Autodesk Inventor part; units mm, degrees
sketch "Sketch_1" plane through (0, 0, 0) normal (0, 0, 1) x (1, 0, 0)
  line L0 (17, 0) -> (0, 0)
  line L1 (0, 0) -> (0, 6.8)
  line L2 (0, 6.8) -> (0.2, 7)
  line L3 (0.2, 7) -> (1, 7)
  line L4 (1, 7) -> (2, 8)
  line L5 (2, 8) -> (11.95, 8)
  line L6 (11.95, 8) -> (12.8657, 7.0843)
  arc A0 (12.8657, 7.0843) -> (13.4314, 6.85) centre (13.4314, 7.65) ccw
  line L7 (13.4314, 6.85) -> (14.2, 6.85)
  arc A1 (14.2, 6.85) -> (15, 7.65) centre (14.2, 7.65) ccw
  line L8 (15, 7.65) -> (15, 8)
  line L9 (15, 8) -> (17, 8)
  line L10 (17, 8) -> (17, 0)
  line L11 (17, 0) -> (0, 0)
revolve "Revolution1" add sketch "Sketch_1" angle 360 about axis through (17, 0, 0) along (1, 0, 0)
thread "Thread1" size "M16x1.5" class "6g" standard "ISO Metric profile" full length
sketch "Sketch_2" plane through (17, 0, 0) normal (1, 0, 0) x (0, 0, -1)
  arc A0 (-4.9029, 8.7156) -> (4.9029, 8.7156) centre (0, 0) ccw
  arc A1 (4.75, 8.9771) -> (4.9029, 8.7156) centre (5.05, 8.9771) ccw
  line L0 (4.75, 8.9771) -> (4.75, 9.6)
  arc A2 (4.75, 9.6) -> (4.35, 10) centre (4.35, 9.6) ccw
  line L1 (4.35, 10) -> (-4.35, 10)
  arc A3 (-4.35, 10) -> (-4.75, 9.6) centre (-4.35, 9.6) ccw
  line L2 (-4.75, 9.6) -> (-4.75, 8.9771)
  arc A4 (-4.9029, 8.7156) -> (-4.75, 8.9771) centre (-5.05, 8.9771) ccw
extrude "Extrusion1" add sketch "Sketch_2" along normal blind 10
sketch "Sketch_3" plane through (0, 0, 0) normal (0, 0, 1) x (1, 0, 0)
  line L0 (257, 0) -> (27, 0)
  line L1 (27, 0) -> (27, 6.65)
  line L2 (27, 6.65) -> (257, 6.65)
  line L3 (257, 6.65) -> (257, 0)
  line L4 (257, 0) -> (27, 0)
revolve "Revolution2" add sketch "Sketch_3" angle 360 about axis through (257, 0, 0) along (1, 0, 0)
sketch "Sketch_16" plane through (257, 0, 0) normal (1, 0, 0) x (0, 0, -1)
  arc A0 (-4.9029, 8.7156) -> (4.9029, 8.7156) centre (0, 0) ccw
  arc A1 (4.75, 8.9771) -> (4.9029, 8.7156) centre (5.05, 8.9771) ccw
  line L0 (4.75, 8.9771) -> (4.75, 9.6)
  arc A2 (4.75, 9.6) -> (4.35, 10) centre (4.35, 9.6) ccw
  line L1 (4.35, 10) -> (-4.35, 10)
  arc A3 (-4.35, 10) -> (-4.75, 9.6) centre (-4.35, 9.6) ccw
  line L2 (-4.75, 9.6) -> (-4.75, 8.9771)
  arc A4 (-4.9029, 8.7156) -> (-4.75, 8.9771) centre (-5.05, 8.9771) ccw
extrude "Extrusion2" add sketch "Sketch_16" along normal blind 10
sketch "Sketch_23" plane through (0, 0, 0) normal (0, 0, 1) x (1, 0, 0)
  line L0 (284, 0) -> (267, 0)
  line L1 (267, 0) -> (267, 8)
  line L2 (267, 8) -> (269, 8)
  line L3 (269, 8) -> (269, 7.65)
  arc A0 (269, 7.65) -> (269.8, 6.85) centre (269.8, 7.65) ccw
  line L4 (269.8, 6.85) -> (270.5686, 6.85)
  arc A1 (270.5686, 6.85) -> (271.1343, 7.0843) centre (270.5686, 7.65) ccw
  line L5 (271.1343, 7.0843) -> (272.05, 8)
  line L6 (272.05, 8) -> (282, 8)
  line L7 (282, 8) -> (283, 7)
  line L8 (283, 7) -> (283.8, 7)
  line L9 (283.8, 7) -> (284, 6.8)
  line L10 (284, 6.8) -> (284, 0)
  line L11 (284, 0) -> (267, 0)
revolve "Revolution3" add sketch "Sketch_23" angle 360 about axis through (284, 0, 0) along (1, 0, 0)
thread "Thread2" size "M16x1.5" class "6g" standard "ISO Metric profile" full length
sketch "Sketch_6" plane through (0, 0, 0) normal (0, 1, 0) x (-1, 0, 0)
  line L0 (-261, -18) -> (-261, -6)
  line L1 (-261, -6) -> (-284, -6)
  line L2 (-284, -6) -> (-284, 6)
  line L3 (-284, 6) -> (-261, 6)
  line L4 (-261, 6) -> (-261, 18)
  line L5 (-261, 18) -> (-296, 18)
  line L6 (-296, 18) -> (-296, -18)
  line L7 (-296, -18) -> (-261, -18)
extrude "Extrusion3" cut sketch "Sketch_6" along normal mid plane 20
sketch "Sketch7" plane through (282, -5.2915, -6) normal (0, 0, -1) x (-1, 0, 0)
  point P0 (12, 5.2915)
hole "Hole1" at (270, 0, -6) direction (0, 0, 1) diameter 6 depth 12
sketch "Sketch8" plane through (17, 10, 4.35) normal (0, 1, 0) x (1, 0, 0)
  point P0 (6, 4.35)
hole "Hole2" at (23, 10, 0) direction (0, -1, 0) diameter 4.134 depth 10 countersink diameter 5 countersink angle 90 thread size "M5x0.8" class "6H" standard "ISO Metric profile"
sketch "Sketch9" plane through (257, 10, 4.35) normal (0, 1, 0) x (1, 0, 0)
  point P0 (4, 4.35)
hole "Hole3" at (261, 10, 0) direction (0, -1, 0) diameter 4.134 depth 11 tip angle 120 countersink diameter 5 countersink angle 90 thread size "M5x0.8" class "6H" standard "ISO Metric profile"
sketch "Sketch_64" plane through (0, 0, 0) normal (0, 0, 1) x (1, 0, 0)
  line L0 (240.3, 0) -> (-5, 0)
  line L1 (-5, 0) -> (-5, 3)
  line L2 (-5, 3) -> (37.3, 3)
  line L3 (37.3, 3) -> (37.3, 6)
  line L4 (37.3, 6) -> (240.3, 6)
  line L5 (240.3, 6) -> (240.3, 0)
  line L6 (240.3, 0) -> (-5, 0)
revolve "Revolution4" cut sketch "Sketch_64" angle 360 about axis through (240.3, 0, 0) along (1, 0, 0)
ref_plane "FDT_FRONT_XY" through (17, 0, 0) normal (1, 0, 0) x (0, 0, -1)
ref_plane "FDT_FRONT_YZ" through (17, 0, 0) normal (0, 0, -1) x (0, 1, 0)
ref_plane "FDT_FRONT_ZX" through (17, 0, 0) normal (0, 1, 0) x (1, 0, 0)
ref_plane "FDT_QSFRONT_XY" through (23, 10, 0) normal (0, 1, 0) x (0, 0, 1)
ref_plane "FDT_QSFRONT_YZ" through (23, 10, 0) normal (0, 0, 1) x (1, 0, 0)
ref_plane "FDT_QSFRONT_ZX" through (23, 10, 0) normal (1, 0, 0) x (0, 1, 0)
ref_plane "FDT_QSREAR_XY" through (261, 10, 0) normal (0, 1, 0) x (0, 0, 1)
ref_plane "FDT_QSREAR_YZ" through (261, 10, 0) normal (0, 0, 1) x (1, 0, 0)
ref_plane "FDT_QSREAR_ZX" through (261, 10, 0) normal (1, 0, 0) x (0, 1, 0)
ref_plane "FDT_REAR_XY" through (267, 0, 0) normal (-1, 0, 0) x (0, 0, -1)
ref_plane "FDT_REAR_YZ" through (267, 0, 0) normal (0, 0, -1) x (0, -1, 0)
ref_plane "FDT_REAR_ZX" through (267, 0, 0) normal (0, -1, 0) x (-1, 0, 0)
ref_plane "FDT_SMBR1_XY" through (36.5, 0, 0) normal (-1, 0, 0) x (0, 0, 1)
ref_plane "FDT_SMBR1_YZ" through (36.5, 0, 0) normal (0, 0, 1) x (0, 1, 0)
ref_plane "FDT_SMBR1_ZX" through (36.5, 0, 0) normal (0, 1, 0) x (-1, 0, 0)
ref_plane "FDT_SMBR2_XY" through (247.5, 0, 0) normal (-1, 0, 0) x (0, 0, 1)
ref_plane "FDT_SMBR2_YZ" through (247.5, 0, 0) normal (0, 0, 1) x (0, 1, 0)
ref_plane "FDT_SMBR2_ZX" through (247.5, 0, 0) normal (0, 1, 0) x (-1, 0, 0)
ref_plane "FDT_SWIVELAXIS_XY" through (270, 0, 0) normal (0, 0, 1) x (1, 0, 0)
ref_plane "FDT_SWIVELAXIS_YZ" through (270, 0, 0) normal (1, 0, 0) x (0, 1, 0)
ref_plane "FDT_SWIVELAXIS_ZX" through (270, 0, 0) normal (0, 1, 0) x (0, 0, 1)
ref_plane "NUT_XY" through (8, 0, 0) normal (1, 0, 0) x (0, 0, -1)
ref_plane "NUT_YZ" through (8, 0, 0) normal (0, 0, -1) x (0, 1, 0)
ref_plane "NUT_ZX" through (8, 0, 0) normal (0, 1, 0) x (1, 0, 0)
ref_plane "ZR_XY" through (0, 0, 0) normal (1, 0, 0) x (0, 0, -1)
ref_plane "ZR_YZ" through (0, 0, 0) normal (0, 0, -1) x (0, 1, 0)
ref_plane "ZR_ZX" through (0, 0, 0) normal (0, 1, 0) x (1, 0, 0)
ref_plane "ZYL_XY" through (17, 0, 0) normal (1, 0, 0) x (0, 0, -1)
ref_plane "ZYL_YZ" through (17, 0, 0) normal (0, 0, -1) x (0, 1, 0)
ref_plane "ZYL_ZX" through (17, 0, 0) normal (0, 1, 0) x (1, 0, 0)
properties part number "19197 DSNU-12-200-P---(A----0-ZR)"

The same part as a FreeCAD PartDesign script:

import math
import FreeCAD as App
import Part
import Sketcher
from FreeCAD import Vector
Q = App.Units.Quantity

doc = App.newDocument("Part")
body = doc.addObject("PartDesign::Body", "Body")

# Sketch on XY plane
sketch1 = doc.addObject("Sketcher::SketchObject", "Sketch")
body.addObject(sketch1)
sketch1.AttachmentSupport = (doc.XY_Plane, [""])
sketch1.MapMode = "FlatFace"
sketch1.addGeometry([
    Part.LineSegment(Vector(0, 0, 0), Vector(17, 0, 0)),  # 0
    Part.LineSegment(Vector(17, 0, 0), Vector(17, 8, 0)),  # 1
    Part.LineSegment(Vector(17, 8, 0), Vector(15, 8, 0)),  # 2
    Part.LineSegment(Vector(15, 8, 0), Vector(15, 7.65, 0)),  # 3
    Part.ArcOfCircle(Part.Circle(Vector(14.2, 7.65, 0), Vector(0, 0, 1), 0.8), math.radians(-90), math.radians(0)),  # 4
    Part.LineSegment(Vector(14.2, 6.85, 0), Vector(13.43, 6.85, 0)),  # 5
    Part.ArcOfCircle(Part.Circle(Vector(13.43, 7.65, 0), Vector(0, 0, 1), 0.8), math.radians(-135), math.radians(-90)),  # 6
    Part.LineSegment(Vector(12.87, 7.08, 0), Vector(11.95, 8, 0)),  # 7
    Part.LineSegment(Vector(11.95, 8, 0), Vector(2, 8, 0)),  # 8
    Part.LineSegment(Vector(2, 8, 0), Vector(1, 7, 0)),  # 9
    Part.LineSegment(Vector(1, 7, 0), Vector(0.2, 7, 0)),  # 10
    Part.LineSegment(Vector(0.2, 7, 0), Vector(0, 6.8, 0)),  # 11
    Part.LineSegment(Vector(0, 6.8, 0), Vector(0, 0, 0)),  # 12
], False)
sketch1.addConstraint([
    Sketcher.Constraint("Coincident", 0, 2, 1, 1),
    Sketcher.Constraint("Coincident", 1, 2, 2, 1),
    Sketcher.Constraint("Coincident", 2, 2, 3, 1),
    Sketcher.Constraint("Tangent", 3, 2, 4, 2),
    Sketcher.Constraint("Tangent", 4, 1, 5, 1),
    Sketcher.Constraint("Tangent", 5, 2, 6, 2),
    Sketcher.Constraint("Tangent", 6, 1, 7, 1),
    Sketcher.Constraint("Coincident", 7, 2, 8, 1),
    Sketcher.Constraint("Coincident", 8, 2, 9, 1),
    Sketcher.Constraint("Coincident", 9, 2, 10, 1),
    Sketcher.Constraint("Coincident", 10, 2, 11, 1),
    Sketcher.Constraint("Coincident", 11, 2, 12, 1),
    Sketcher.Constraint("Coincident", 12, 2, 0, 1),
    Sketcher.Constraint("Horizontal", 0),
    Sketcher.Constraint("Vertical", 1),
    Sketcher.Constraint("Horizontal", 2),
    Sketcher.Constraint("Vertical", 3),
    Sketcher.Constraint("Horizontal", 5),
    Sketcher.Constraint("Horizontal", 8),
    Sketcher.Constraint("Horizontal", 10),
    Sketcher.Constraint("Vertical", 12),
    Sketcher.Constraint("Coincident", 12, 2, -1, 1),
    Sketcher.Constraint("Equal", 4, 6),
    Sketcher.Constraint("Perpendicular", 7, 9),
    Sketcher.Constraint("Parallel", 9, 11),
    Sketcher.Constraint("Horizontal", 2, 2, 7, 2),
    Sketcher.Constraint("Radius", 4, Q("0.8 mm")),
    Sketcher.Constraint("DistanceX", 0, 1, 0, 2, Q("17 mm")),
    Sketcher.Constraint("DistanceX", 2, 2, 2, 1, Q("2 mm")),
    Sketcher.Constraint("DistanceY", 1, 1, 1, 2, Q("8 mm")),
    Sketcher.Constraint("Angle", 7, Q("135 deg")),
    Sketcher.Constraint("DistanceX", 10, 2, 10, 1, Q("0.8 mm")),
    Sketcher.Constraint("DistanceY", 12, 2, 12, 1, Q("6.8 mm")),
    Sketcher.Constraint("DistanceX", -1, 1, 9, 2, Q("1 mm")),
    Sketcher.Constraint("DistanceX", 8, 2, 8, 1, Q("9.95 mm")),
    Sketcher.Constraint("DistanceY", 3, 2, 3, 1, Q("0.35 mm")),
])
revolution = doc.addObject("PartDesign::Revolution", "Revolution")
body.addObject(revolution)
revolution.Profile = sketch1
revolution.ReferenceAxis = (sketch1, ["H_Axis"])
revolution.Angle = 360

# Sketch on YZ plane
sketch2 = doc.addObject("Sketcher::SketchObject", "Sketch001")
body.addObject(sketch2)
sketch2.AttachmentSupport = (doc.YZ_Plane, [""])
sketch2.MapMode = "FlatFace"
sketch2.AttachmentOffset = App.Placement(Vector(0, 0, 17), App.Rotation())
sketch2.addGeometry([
    Part.ArcOfCircle(Part.Circle(Vector(8.98, 5.05, 0), Vector(0, 0, 1), 0.3), math.radians(-151), math.radians(-90)),  # 0
    Part.ArcOfCircle(Part.Circle(Vector(0, 0, 0), Vector(0, 0, 1), 10), math.radians(29), math.radians(331)),  # 1
    Part.ArcOfCircle(Part.Circle(Vector(8.98, -5.05, 0), Vector(0, 0, 1), 0.3), math.radians(90), math.radians(151)),  # 2
    Part.LineSegment(Vector(8.98, -4.75, 0), Vector(9.6, -4.75, 0)),  # 3
    Part.ArcOfCircle(Part.Circle(Vector(9.6, -4.35, 0), Vector(0, 0, 1), 0.4), math.radians(-90), math.radians(0)),  # 4
    Part.LineSegment(Vector(10, -4.35, 0), Vector(10, 4.35, 0)),  # 5
    Part.ArcOfCircle(Part.Circle(Vector(9.6, 4.35, 0), Vector(0, 0, 1), 0.4), math.radians(0), math.radians(90)),  # 6
    Part.LineSegment(Vector(9.6, 4.75, 0), Vector(8.98, 4.75, 0)),  # 7
], False)
sketch2.addConstraint([
    Sketcher.Constraint("Tangent", 0, 1, 1, 1),
    Sketcher.Constraint("Tangent", 1, 2, 2, 2),
    Sketcher.Constraint("Tangent", 2, 1, 3, 1),
    Sketcher.Constraint("Tangent", 3, 2, 4, 1),
    Sketcher.Constraint("Tangent", 4, 2, 5, 1),
    Sketcher.Constraint("Tangent", 5, 2, 6, 1),
    Sketcher.Constraint("Tangent", 6, 2, 7, 1),
    Sketcher.Constraint("Tangent", 7, 2, 0, 2),
    Sketcher.Constraint("Horizontal", 3),
    Sketcher.Constraint("Vertical", 5),
    Sketcher.Constraint("Horizontal", 7),
    Sketcher.Constraint("Coincident", 1, 3, -1, 1),
    Sketcher.Constraint("Equal", 0, 2),
    Sketcher.Constraint("Equal", 4, 6),
    Sketcher.Constraint("Vertical", 0, 3, 2, 3),
    Sketcher.Constraint("Radius", 1, Q("10 mm")),
    Sketcher.Constraint("Radius", 0, Q("0.3 mm")),
    Sketcher.Constraint("Radius", 4, Q("0.4 mm")),
    Sketcher.Constraint("DistanceY", 5, 1, 5, 2, Q("8.7 mm")),
    Sketcher.Constraint("DistanceX", -1, 1, 4, 2, Q("10 mm")),
])
pad1 = doc.addObject("PartDesign::Pad", "Pad")
body.addObject(pad1)
pad1.Profile = sketch2
pad1.Length = 10

# Sketch on XY plane
sketch3 = doc.addObject("Sketcher::SketchObject", "Sketch002")
body.addObject(sketch3)
sketch3.AttachmentSupport = (doc.XY_Plane, [""])
sketch3.MapMode = "FlatFace"
sketch3.addGeometry([
    Part.LineSegment(Vector(27, 0, 0), Vector(257, 0, 0)),
    Part.LineSegment(Vector(257, 0, 0), Vector(257, 7, 0)),
    Part.LineSegment(Vector(257, 7, 0), Vector(27, 7, 0)),
    Part.LineSegment(Vector(27, 7, 0), Vector(27, 0, 0)),
], False)
sketch3.addConstraint([
    Sketcher.Constraint("Coincident", 0, 2, 1, 1),
    Sketcher.Constraint("Coincident", 1, 2, 2, 1),
    Sketcher.Constraint("Coincident", 2, 2, 3, 1),
    Sketcher.Constraint("Coincident", 3, 2, 0, 1),
    Sketcher.Constraint("Horizontal", 0),
    Sketcher.Constraint("Vertical", 1),
    Sketcher.Constraint("Horizontal", 2),
    Sketcher.Constraint("Vertical", 3),
    Sketcher.Constraint("PointOnObject", 0, 2, -1),
    Sketcher.Constraint("DistanceX", 0, 1, 0, 2, Q("230 mm")),
    Sketcher.Constraint("DistanceX", -1, 1, 0, 2, Q("257 mm")),
    Sketcher.Constraint("DistanceY", 1, 1, 1, 2, Q("6.65 mm")),
])
revolution2 = doc.addObject("PartDesign::Revolution", "Revolution001")
body.addObject(revolution2)
revolution2.Profile = sketch3
revolution2.ReferenceAxis = (sketch3, ["H_Axis"])
revolution2.Angle = 360

# Sketch on YZ plane
sketch4 = doc.addObject("Sketcher::SketchObject", "Sketch003")
body.addObject(sketch4)
sketch4.AttachmentSupport = (doc.YZ_Plane, [""])
sketch4.MapMode = "FlatFace"
sketch4.AttachmentOffset = App.Placement(Vector(0, 0, 257), App.Rotation())
sketch4.addGeometry([
    Part.ArcOfCircle(Part.Circle(Vector(8.98, 5.05, 0), Vector(0, 0, 1), 0.3), math.radians(-151), math.radians(-90)),  # 0
    Part.ArcOfCircle(Part.Circle(Vector(0, 0, 0), Vector(0, 0, 1), 10), math.radians(29), math.radians(331)),  # 1
    Part.ArcOfCircle(Part.Circle(Vector(8.98, -5.05, 0), Vector(0, 0, 1), 0.3), math.radians(90), math.radians(151)),  # 2
    Part.LineSegment(Vector(8.98, -4.75, 0), Vector(9.6, -4.75, 0)),  # 3
    Part.ArcOfCircle(Part.Circle(Vector(9.6, -4.35, 0), Vector(0, 0, 1), 0.4), math.radians(-90), math.radians(0)),  # 4
    Part.LineSegment(Vector(10, -4.35, 0), Vector(10, 4.35, 0)),  # 5
    Part.ArcOfCircle(Part.Circle(Vector(9.6, 4.35, 0), Vector(0, 0, 1), 0.4), math.radians(0), math.radians(90)),  # 6
    Part.LineSegment(Vector(9.6, 4.75, 0), Vector(8.98, 4.75, 0)),  # 7
], False)
sketch4.addConstraint([
    Sketcher.Constraint("Tangent", 0, 1, 1, 1),
    Sketcher.Constraint("Tangent", 1, 2, 2, 2),
    Sketcher.Constraint("Tangent", 2, 1, 3, 1),
    Sketcher.Constraint("Tangent", 3, 2, 4, 1),
    Sketcher.Constraint("Tangent", 4, 2, 5, 1),
    Sketcher.Constraint("Tangent", 5, 2, 6, 1),
    Sketcher.Constraint("Tangent", 6, 2, 7, 1),
    Sketcher.Constraint("Tangent", 7, 2, 0, 2),
    Sketcher.Constraint("Horizontal", 3),
    Sketcher.Constraint("Vertical", 5),
    Sketcher.Constraint("Horizontal", 7),
    Sketcher.Constraint("Coincident", 1, 3, -1, 1),
    Sketcher.Constraint("Equal", 0, 2),
    Sketcher.Constraint("Equal", 4, 6),
    Sketcher.Constraint("Vertical", 0, 3, 2, 3),
    Sketcher.Constraint("Radius", 1, Q("10 mm")),
    Sketcher.Constraint("Radius", 0, Q("0.3 mm")),
    Sketcher.Constraint("Radius", 4, Q("0.4 mm")),
    Sketcher.Constraint("DistanceY", 5, 1, 5, 2, Q("8.7 mm")),
    Sketcher.Constraint("DistanceX", -1, 1, 4, 2, Q("10 mm")),
])
pad2 = doc.addObject("PartDesign::Pad", "Pad001")
body.addObject(pad2)
pad2.Profile = sketch4
pad2.Length = 10

# Sketch on XY plane
sketch5 = doc.addObject("Sketcher::SketchObject", "Sketch004")
body.addObject(sketch5)
sketch5.AttachmentSupport = (doc.XY_Plane, [""])
sketch5.MapMode = "FlatFace"
sketch5.addGeometry([
    Part.LineSegment(Vector(267, 0, 0), Vector(284, 0, 0)),  # 0
    Part.LineSegment(Vector(284, 0, 0), Vector(284, 6.8, 0)),  # 1
    Part.LineSegment(Vector(284, 6.8, 0), Vector(283.8, 7, 0)),  # 2
    Part.LineSegment(Vector(283.8, 7, 0), Vector(283, 7, 0)),  # 3
    Part.LineSegment(Vector(283, 7, 0), Vector(282, 8, 0)),  # 4
    Part.LineSegment(Vector(282, 8, 0), Vector(272.05, 8, 0)),  # 5
    Part.LineSegment(Vector(272.05, 8, 0), Vector(271.13, 7.08, 0)),  # 6
    Part.ArcOfCircle(Part.Circle(Vector(270.57, 7.65, 0), Vector(0, 0, 1), 0.8), math.radians(-90), math.radians(-45)),  # 7
    Part.LineSegment(Vector(270.57, 6.85, 0), Vector(269.8, 6.85, 0)),  # 8
    Part.ArcOfCircle(Part.Circle(Vector(269.8, 7.65, 0), Vector(0, 0, 1), 0.8), math.radians(180), math.radians(270)),  # 9
    Part.LineSegment(Vector(269, 7.65, 0), Vector(269, 8, 0)),  # 10
    Part.LineSegment(Vector(269, 8, 0), Vector(267, 8, 0)),  # 11
    Part.LineSegment(Vector(267, 8, 0), Vector(267, 0, 0)),  # 12
], False)
sketch5.addConstraint([
    Sketcher.Constraint("Coincident", 0, 2, 1, 1),
    Sketcher.Constraint("Coincident", 1, 2, 2, 1),
    Sketcher.Constraint("Coincident", 2, 2, 3, 1),
    Sketcher.Constraint("Coincident", 3, 2, 4, 1),
    Sketcher.Constraint("Coincident", 4, 2, 5, 1),
    Sketcher.Constraint("Coincident", 5, 2, 6, 1),
    Sketcher.Constraint("Tangent", 6, 2, 7, 2),
    Sketcher.Constraint("Tangent", 7, 1, 8, 1),
    Sketcher.Constraint("Tangent", 8, 2, 9, 2),
    Sketcher.Constraint("Tangent", 9, 1, 10, 1),
    Sketcher.Constraint("Coincident", 10, 2, 11, 1),
    Sketcher.Constraint("Coincident", 11, 2, 12, 1),
    Sketcher.Constraint("Coincident", 12, 2, 0, 1),
    Sketcher.Constraint("Horizontal", 0),
    Sketcher.Constraint("Vertical", 1),
    Sketcher.Constraint("Horizontal", 3),
    Sketcher.Constraint("Horizontal", 5),
    Sketcher.Constraint("Horizontal", 8),
    Sketcher.Constraint("Vertical", 10),
    Sketcher.Constraint("Horizontal", 11),
    Sketcher.Constraint("Vertical", 12),
    Sketcher.Constraint("Equal", 7, 9),
    Sketcher.Constraint("PointOnObject", 0, 2, -1),
    Sketcher.Constraint("Parallel", 2, 4),
    Sketcher.Constraint("Perpendicular", 4, 6),
    Sketcher.Constraint("Horizontal", 5, 2, 10, 2),
    Sketcher.Constraint("Radius", 7, Q("0.8 mm")),
    Sketcher.Constraint("DistanceX", 0, 1, 0, 2, Q("17 mm")),
    Sketcher.Constraint("DistanceX", 11, 2, 11, 1, Q("2 mm")),
    Sketcher.Constraint("DistanceY", 12, 2, 12, 1, Q("8 mm")),
    Sketcher.Constraint("Angle", 2, Q("135 deg")),
    Sketcher.Constraint("DistanceX", 3, 2, 3, 1, Q("0.8 mm")),
    Sketcher.Constraint("DistanceY", 1, 1, 1, 2, Q("6.8 mm")),
    Sketcher.Constraint("DistanceX", -1, 1, 0, 2, Q("284 mm")),
    Sketcher.Constraint("DistanceY", -1, 1, 2, 2, Q("7 mm")),
    Sketcher.Constraint("DistanceX", 5, 2, 5, 1, Q("9.95 mm")),
    Sketcher.Constraint("DistanceY", 10, 1, 10, 2, Q("0.35 mm")),
])
revolution3 = doc.addObject("PartDesign::Revolution", "Revolution002")
body.addObject(revolution3)
revolution3.Profile = sketch5
revolution3.ReferenceAxis = (sketch5, ["H_Axis"])
revolution3.Angle = 360

# Sketch on XZ plane
sketch6 = doc.addObject("Sketcher::SketchObject", "Sketch005")
body.addObject(sketch6)
sketch6.AttachmentSupport = (doc.XZ_Plane, [""])
sketch6.MapMode = "FlatFace"
sketch6.addGeometry([
    Part.LineSegment(Vector(296, -18, 0), Vector(261, -18, 0)),  # 0
    Part.LineSegment(Vector(261, -18, 0), Vector(261, -6, 0)),  # 1
    Part.LineSegment(Vector(261, -6, 0), Vector(284, -6, 0)),  # 2
    Part.LineSegment(Vector(284, -6, 0), Vector(284, 6, 0)),  # 3
    Part.LineSegment(Vector(284, 6, 0), Vector(261, 6, 0)),  # 4
    Part.LineSegment(Vector(261, 6, 0), Vector(261, 18, 0)),  # 5
    Part.LineSegment(Vector(261, 18, 0), Vector(296, 18, 0)),  # 6
    Part.LineSegment(Vector(296, 18, 0), Vector(296, -18, 0)),  # 7
], False)
sketch6.addConstraint([
    Sketcher.Constraint("Coincident", 0, 2, 1, 1),
    Sketcher.Constraint("Coincident", 1, 2, 2, 1),
    Sketcher.Constraint("Coincident", 2, 2, 3, 1),
    Sketcher.Constraint("Coincident", 3, 2, 4, 1),
    Sketcher.Constraint("Coincident", 4, 2, 5, 1),
    Sketcher.Constraint("Coincident", 5, 2, 6, 1),
    Sketcher.Constraint("Coincident", 6, 2, 7, 1),
    Sketcher.Constraint("Coincident", 7, 2, 0, 1),
    Sketcher.Constraint("Horizontal", 0),
    Sketcher.Constraint("Vertical", 1),
    Sketcher.Constraint("Horizontal", 2),
    Sketcher.Constraint("Vertical", 3),
    Sketcher.Constraint("Horizontal", 4),
    Sketcher.Constraint("Vertical", 5),
    Sketcher.Constraint("Horizontal", 6),
    Sketcher.Constraint("Vertical", 7),
    Sketcher.Constraint("Symmetric", 1, 2, 4, 2, -1),
    Sketcher.Constraint("Equal", 1, 3),
    Sketcher.Constraint("Equal", 3, 5),
    Sketcher.Constraint("DistanceX", 0, 2, 0, 1, Q("35 mm")),
    Sketcher.Constraint("DistanceX", 2, 1, 2, 2, Q("23 mm")),
    Sketcher.Constraint("DistanceY", 1, 1, 1, 2, Q("12 mm")),
    Sketcher.Constraint("DistanceX", -1, 1, 0, 2, Q("261 mm")),
])
pocket1 = doc.addObject("PartDesign::Pocket", "Pocket")
body.addObject(pocket1)
pocket1.Profile = sketch6
pocket1.Length = 20
pocket1.Midplane = True

# Sketch on XY plane
sketch7 = doc.addObject("Sketcher::SketchObject", "Sketch006")
body.addObject(sketch7)
sketch7.AttachmentSupport = (doc.XY_Plane, [""])
sketch7.MapMode = "FlatFace"
sketch7.AttachmentOffset = App.Placement(Vector(0, 0, -6), App.Rotation())
sketch7.addGeometry(Part.Circle(Vector(270, 0, 0), Vector(0, 0, 1), 3), False)
sketch7.addConstraint([
    Sketcher.Constraint("PointOnObject", 0, 3, -1),
    Sketcher.Constraint("Diameter", 0, Q("6 mm")),
    Sketcher.Constraint("DistanceX", -1, 1, 0, 3, Q("270 mm")),
])
doc.recompute()
hole = doc.addObject("PartDesign::Hole", "Hole")
body.addObject(hole)
hole.Profile = sketch7
hole.ThreadType = "None"
hole.Diameter = 6
hole.DepthType = "Dimension"
hole.Depth = 12
hole.DrillPoint = "Flat"
hole.Reversed = True

# Sketch on XZ plane
sketch8 = doc.addObject("Sketcher::SketchObject", "Sketch007")
body.addObject(sketch8)
sketch8.AttachmentSupport = (doc.XZ_Plane, [""])
sketch8.MapMode = "FlatFace"
sketch8.AttachmentOffset = App.Placement(Vector(0, 0, -10), App.Rotation())
sketch8.addGeometry(Part.Circle(Vector(23, 0, 0), Vector(0, 0, 1), 2.1), False)
sketch8.addConstraint([
    Sketcher.Constraint("PointOnObject", 0, 3, -1),
    Sketcher.Constraint("Diameter", 0, Q("4.134 mm")),
    Sketcher.Constraint("DistanceX", -1, 1, 0, 3, Q("23 mm")),
])
doc.recompute()
hole2 = doc.addObject("PartDesign::Hole", "Hole001")
body.addObject(hole2)
hole2.Profile = sketch8
hole2.ThreadType = "None"
hole2.Diameter = 4.134
hole2.DepthType = "Dimension"
hole2.Depth = 10
hole2.DrillPoint = "Flat"
hole2.HoleCutType = "Countersink"
hole2.HoleCutDiameter = 5
hole2.HoleCutCountersinkAngle = 90
hole2.Reversed = True

# Sketch on XZ plane
sketch9 = doc.addObject("Sketcher::SketchObject", "Sketch008")
body.addObject(sketch9)
sketch9.AttachmentSupport = (doc.XZ_Plane, [""])
sketch9.MapMode = "FlatFace"
sketch9.AttachmentOffset = App.Placement(Vector(0, 0, -10), App.Rotation())
sketch9.addGeometry(Part.Circle(Vector(261, 0, 0), Vector(0, 0, 1), 2.1), False)
sketch9.addConstraint([
    Sketcher.Constraint("PointOnObject", 0, 3, -1),
    Sketcher.Constraint("Diameter", 0, Q("4.134 mm")),
    Sketcher.Constraint("DistanceX", -1, 1, 0, 3, Q("261 mm")),
])
doc.recompute()
hole3 = doc.addObject("PartDesign::Hole", "Hole002")
body.addObject(hole3)
hole3.Profile = sketch9
hole3.ThreadType = "None"
hole3.Diameter = 4.134
hole3.DepthType = "Dimension"
hole3.Depth = 11
hole3.DrillPoint = "Angled"
hole3.DrillPointAngle = 120
hole3.HoleCutType = "Countersink"
hole3.HoleCutDiameter = 5
hole3.HoleCutCountersinkAngle = 90
hole3.Reversed = True

# Sketch on XY plane
sketch10 = doc.addObject("Sketcher::SketchObject", "Sketch009")
body.addObject(sketch10)
sketch10.AttachmentSupport = (doc.XY_Plane, [""])
sketch10.MapMode = "FlatFace"
sketch10.addGeometry([
    Part.LineSegment(Vector(-5, 0, 0), Vector(240.3, 0, 0)),  # 0
    Part.LineSegment(Vector(240.3, 0, 0), Vector(240.3, 6, 0)),  # 1
    Part.LineSegment(Vector(240.3, 6, 0), Vector(37.3, 6, 0)),  # 2
    Part.LineSegment(Vector(37.3, 6, 0), Vector(37.3, 3, 0)),  # 3
    Part.LineSegment(Vector(37.3, 3, 0), Vector(-5, 3, 0)),  # 4
    Part.LineSegment(Vector(-5, 3, 0), Vector(-5, 0, 0)),  # 5
], False)
sketch10.addConstraint([
    Sketcher.Constraint("Coincident", 0, 2, 1, 1),
    Sketcher.Constraint("Coincident", 1, 2, 2, 1),
    Sketcher.Constraint("Coincident", 2, 2, 3, 1),
    Sketcher.Constraint("Coincident", 3, 2, 4, 1),
    Sketcher.Constraint("Coincident", 4, 2, 5, 1),
    Sketcher.Constraint("Coincident", 5, 2, 0, 1),
    Sketcher.Constraint("Horizontal", 0),
    Sketcher.Constraint("Vertical", 1),
    Sketcher.Constraint("Horizontal", 2),
    Sketcher.Constraint("Vertical", 3),
    Sketcher.Constraint("Horizontal", 4),
    Sketcher.Constraint("Vertical", 5),
    Sketcher.Constraint("PointOnObject", 0, 2, -1),
    Sketcher.Constraint("Equal", 3, 5),
    Sketcher.Constraint("DistanceX", 2, 2, 2, 1, Q("203 mm")),
    Sketcher.Constraint("DistanceY", 1, 1, 1, 2, Q("6 mm")),
    Sketcher.Constraint("DistanceX", 0, 1, 0, 2, Q("245.3 mm")),
    Sketcher.Constraint("DistanceX", 4, 2, -1, 1, Q("5 mm")),
])
groove = doc.addObject("PartDesign::Groove", "Groove")
body.addObject(groove)
groove.Profile = sketch10
groove.ReferenceAxis = (sketch10, ["H_Axis"])
groove.Angle = 360

doc.recompute()
